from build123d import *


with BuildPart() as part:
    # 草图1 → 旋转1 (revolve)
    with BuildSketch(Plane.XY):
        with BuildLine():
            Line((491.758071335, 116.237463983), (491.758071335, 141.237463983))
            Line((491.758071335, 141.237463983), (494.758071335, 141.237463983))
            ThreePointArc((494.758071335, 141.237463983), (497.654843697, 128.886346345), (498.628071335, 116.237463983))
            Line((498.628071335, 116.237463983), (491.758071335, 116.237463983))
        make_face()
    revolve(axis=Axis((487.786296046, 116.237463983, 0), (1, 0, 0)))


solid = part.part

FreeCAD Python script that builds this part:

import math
import FreeCAD as App
import Part
import Sketcher

V = App.Vector

doc = App.newDocument("Part")
body = doc.addObject("PartDesign::Body", "Body")

sketch1 = body.newObject("Sketcher::SketchObject", "Sketch")
sketch1.AttachmentSupport = (doc.getObject("XY_Plane"), [""])
sketch1.MapMode = "FlatFace"
sketch1.addGeometry([
    Part.LineSegment(V(491.8, 141.2, 0), V(491.8, 116.2, 0)),
    Part.LineSegment(V(491.8, 116.2, 0), V(498.6, 116.2, 0)),
    Part.ArcOfCircle(Part.Circle(V(415.9, 116.2, 0), V(0, 0, 1), 82.7), math.radians(0), math.radians(17.6)),
    Part.LineSegment(V(494.8, 141.2, 0), V(491.8, 141.2, 0)),
], False)
sketch1.addGeometry(Part.LineSegment(V(415.9, 116.2, 0), V(498.6, 116.2, 0)), True)
sketch1.addConstraint([
    Sketcher.Constraint("Coincident", 0, 2, 1, 1),
    Sketcher.Constraint("Coincident", 1, 2, 2, 1),
    Sketcher.Constraint("Coincident", 2, 2, 3, 1),
    Sketcher.Constraint("Coincident", 3, 2, 0, 1),
    Sketcher.Constraint("Vertical", 0),
    Sketcher.Constraint("Horizontal", 1),
    Sketcher.Constraint("Horizontal", 3),
    Sketcher.Constraint("Horizontal", 4),
    Sketcher.Constraint("Coincident", 4, 1, 2, 3),
    Sketcher.Constraint("Coincident", 4, 2, 1, 2),
    Sketcher.Constraint("DistanceX", 3, 2, 3, 1, 3.0),
    Sketcher.Constraint("DistanceY", 0, 2, 0, 1, 25.0),
    Sketcher.Constraint("DistanceX", 1, 1, 1, 2, 6.87),
    Sketcher.Constraint("DistanceX", -1, 1, 0, 2, 491.758071),
    Sketcher.Constraint("DistanceY", -1, 1, 2, 3, 116.237464),
])
revolution = body.newObject("PartDesign::Revolution", "Revolution")
revolution.Profile = sketch1
revolution.ReferenceAxis = (sketch1, ["Axis0"])
revolution.Angle = 360

doc.recompute()
